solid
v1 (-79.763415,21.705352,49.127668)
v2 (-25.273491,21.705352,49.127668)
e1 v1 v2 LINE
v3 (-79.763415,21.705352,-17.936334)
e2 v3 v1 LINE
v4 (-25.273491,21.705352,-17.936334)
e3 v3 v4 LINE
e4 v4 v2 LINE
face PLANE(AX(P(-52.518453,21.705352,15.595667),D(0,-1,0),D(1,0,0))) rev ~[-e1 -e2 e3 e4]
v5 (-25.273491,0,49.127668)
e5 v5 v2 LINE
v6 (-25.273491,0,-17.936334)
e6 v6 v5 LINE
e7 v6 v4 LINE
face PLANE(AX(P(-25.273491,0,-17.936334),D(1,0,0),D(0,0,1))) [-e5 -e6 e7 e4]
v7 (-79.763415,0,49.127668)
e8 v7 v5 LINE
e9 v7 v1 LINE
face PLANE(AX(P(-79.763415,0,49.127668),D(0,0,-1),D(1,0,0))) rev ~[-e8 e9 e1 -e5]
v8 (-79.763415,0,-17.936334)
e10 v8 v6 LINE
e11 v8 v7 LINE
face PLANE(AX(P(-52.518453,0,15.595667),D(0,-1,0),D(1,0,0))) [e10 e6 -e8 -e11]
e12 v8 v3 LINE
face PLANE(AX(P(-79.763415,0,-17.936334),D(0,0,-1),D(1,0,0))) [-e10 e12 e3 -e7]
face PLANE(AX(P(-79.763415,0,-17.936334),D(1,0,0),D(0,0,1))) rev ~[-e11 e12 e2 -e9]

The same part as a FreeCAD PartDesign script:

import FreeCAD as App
import Part
import Sketcher
from FreeCAD import Vector


def add_polygon(sketch, points):
    """Adds a closed chain of lines whose ends are joined by coincident constraints."""
    first, n = sketch.GeometryCount, len(points)
    for a, b in zip(points, points[1:] + points[:1]):
        sketch.addGeometry(Part.LineSegment(App.Vector(*a, 0), App.Vector(*b, 0)), False)
    for i in range(n):
        sketch.addConstraint(Sketcher.Constraint("Coincident", first + i, 2, first + (i + 1) % n, 1))

doc = App.newDocument("Part")
body = doc.addObject("PartDesign::Body", "Body")

# Sketch on XZ plane
sketch1 = body.newObject("Sketcher::SketchObject", "Sketch")
sketch1.AttachmentSupport = (doc.getObject("XZ_Plane"), [""])
sketch1.MapMode = "FlatFace"
add_polygon(sketch1, [(-80, 49), (-80, -18), (-25, -18), (-25, 49)])  # lines 0-3
sketch1.addConstraint([
    Sketcher.Constraint("Vertical", 0),
    Sketcher.Constraint("Horizontal", 1),
    Sketcher.Constraint("Vertical", 2),
    Sketcher.Constraint("Horizontal", 3),
    Sketcher.Constraint("DistanceX", 1, 1, 1, 2, 54.489925),
    Sketcher.Constraint("DistanceY", 0, 2, 0, 1, 67.064002),
    Sketcher.Constraint("DistanceX", 1, 2, -1, 1, 25.273491),
    Sketcher.Constraint("DistanceY", 0, 2, -1, 1, 17.936334),
])
pad1 = body.newObject("PartDesign::Pad", "Pad")
pad1.Profile = sketch1
pad1.Length = 21.705352
pad1.Reversed = True

doc.recompute()
